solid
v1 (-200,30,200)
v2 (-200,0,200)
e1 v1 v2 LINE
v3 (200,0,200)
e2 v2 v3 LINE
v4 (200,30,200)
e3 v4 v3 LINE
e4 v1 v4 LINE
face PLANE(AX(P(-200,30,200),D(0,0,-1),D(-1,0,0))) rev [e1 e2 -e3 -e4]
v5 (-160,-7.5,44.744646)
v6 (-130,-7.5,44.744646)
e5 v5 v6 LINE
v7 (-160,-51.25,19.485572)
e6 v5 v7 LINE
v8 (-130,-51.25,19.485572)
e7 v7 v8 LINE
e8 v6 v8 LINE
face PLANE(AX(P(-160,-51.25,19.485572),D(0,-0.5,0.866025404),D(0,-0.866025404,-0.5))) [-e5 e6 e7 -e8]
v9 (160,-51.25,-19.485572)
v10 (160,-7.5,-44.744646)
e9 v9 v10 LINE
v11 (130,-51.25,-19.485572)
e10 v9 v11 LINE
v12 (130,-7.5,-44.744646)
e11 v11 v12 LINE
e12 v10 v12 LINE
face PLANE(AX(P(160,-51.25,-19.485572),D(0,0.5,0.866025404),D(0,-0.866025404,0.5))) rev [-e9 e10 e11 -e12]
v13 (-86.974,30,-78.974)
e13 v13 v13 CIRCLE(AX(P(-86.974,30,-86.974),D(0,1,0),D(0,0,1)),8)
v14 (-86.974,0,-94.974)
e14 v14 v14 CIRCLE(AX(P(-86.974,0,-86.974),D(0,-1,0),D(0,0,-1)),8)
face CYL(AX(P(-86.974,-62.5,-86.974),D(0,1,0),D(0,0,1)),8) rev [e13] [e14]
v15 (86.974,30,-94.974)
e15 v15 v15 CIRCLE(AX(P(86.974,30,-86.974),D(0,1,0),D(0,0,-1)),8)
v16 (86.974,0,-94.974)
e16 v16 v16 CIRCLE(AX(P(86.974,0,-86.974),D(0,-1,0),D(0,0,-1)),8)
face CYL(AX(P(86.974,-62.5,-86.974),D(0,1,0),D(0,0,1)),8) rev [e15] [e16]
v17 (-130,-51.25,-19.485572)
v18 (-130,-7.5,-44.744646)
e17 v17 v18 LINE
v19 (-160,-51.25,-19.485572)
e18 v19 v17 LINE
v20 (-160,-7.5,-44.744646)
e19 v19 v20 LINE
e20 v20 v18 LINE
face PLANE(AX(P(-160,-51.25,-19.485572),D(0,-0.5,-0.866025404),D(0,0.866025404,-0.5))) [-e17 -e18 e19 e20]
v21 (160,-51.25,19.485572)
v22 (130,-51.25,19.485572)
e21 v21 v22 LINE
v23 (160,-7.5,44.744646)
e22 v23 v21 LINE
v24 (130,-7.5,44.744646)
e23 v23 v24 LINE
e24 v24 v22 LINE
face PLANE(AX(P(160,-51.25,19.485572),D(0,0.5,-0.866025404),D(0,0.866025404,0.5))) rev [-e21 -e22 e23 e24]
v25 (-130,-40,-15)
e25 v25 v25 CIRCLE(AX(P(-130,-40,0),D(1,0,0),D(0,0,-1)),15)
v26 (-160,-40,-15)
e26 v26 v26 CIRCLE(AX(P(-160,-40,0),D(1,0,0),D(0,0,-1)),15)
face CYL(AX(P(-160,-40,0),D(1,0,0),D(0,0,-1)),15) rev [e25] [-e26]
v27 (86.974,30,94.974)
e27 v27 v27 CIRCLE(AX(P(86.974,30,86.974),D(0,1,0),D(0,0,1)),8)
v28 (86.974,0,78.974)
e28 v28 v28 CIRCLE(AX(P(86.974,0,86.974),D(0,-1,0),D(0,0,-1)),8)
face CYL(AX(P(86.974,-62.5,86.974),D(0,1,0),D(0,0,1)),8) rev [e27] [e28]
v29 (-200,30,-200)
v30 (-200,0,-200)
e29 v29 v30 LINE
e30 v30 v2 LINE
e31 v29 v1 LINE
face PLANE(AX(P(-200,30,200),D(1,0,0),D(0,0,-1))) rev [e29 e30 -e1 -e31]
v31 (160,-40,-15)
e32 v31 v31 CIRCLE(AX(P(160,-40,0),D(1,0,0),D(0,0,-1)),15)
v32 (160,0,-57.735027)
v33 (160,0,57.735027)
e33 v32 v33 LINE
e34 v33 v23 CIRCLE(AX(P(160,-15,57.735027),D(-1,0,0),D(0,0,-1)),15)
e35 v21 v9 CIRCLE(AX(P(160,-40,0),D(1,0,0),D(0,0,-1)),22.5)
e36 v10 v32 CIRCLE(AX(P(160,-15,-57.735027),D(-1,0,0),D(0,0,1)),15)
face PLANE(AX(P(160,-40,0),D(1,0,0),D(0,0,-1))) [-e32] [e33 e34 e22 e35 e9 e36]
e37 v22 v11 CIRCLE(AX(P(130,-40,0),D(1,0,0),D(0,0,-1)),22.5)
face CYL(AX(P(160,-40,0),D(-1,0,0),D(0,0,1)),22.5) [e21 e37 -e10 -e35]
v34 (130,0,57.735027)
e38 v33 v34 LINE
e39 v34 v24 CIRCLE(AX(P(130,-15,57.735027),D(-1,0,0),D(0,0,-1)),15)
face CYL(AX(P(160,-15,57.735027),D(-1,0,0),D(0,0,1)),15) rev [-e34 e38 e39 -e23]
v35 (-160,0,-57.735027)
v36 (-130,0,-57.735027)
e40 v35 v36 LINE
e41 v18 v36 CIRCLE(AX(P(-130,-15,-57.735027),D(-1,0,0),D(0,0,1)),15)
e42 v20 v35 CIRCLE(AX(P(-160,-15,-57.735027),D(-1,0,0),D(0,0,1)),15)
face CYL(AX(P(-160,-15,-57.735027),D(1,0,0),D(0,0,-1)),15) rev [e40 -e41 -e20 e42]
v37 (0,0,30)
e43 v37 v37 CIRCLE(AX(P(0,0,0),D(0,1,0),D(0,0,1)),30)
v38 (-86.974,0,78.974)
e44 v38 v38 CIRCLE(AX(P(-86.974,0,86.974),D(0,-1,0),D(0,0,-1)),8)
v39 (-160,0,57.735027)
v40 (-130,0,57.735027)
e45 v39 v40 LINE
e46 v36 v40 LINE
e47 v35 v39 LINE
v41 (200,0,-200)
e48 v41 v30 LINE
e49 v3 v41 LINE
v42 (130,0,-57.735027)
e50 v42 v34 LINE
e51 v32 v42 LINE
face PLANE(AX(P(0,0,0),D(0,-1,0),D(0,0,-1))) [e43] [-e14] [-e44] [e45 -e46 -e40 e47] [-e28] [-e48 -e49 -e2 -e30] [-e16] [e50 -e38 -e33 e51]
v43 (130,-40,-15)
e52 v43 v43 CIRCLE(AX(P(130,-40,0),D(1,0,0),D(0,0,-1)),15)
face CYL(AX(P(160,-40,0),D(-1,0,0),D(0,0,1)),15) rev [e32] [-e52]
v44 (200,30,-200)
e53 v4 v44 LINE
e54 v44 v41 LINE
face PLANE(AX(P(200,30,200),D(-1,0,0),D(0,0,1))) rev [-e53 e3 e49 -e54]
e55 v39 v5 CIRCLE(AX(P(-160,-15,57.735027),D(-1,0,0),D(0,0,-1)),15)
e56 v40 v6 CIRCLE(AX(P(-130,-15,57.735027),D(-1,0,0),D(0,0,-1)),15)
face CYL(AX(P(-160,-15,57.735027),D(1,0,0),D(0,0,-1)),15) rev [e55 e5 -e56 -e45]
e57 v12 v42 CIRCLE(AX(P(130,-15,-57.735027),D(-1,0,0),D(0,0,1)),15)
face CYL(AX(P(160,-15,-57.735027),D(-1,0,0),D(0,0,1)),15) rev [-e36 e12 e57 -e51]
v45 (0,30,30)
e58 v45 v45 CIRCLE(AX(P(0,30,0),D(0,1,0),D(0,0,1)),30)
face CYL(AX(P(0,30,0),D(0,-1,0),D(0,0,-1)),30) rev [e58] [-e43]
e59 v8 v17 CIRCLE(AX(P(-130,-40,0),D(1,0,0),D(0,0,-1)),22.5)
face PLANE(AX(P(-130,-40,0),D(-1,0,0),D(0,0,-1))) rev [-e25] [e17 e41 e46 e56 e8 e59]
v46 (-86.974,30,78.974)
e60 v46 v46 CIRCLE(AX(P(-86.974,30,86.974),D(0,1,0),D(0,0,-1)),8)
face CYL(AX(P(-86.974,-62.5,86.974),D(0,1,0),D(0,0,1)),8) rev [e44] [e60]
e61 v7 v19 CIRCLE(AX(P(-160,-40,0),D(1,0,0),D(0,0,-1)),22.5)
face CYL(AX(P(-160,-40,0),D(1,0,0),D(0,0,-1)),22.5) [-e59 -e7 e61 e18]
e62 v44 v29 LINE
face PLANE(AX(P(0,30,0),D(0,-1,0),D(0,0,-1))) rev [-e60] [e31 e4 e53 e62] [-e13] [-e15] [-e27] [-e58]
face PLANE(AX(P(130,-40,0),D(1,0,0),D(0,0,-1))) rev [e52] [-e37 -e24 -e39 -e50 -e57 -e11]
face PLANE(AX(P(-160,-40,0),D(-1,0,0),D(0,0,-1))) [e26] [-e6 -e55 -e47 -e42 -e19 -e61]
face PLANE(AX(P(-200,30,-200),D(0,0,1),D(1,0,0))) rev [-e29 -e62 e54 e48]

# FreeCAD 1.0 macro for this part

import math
import FreeCAD as App
import Part
import Sketcher
Q = App.Units.Quantity


def add_polygon(sketch, points):
    """Adds a closed chain of lines whose ends are joined by coincident constraints."""
    first, n = sketch.GeometryCount, len(points)
    for a, b in zip(points, points[1:] + points[:1]):
        sketch.addGeometry(Part.LineSegment(App.Vector(*a, 0), App.Vector(*b, 0)), False)
    for i in range(n):
        sketch.addConstraint(Sketcher.Constraint("Coincident", first + i, 2, first + (i + 1) % n, 1))

doc = App.newDocument("Part")
body = doc.addObject("PartDesign::Body", "Body")

sketch1 = doc.addObject("Sketcher::SketchObject", "Sketch")
body.addObject(sketch1)
sketch1.AttachmentSupport = (doc.XZ_Plane, [""])
sketch1.MapMode = "FlatFace"
add_polygon(sketch1, [(-200, -200), (-200, 200), (200, 200), (200, -200)])
sketch1.addGeometry(Part.Circle(App.Vector(0, 0, 0), App.Vector(0, 0, 1), 30), False)
sketch1.addConstraint([
    Sketcher.Constraint("Vertical", 0),
    Sketcher.Constraint("Horizontal", 1),
    Sketcher.Constraint("Vertical", 2),
    Sketcher.Constraint("Horizontal", 3),
    Sketcher.Constraint("Coincident", 4, 3, -1, 1),
    Sketcher.Constraint("Symmetric", 0, 2, 2, 2, -1, 1),
    Sketcher.Constraint("Equal", 3, 0),
    Sketcher.Constraint("Diameter", 4, 60.0),
    Sketcher.Constraint("DistanceX", 1, 1, 1, 2, 400.0),
])
pad1 = doc.addObject("PartDesign::Pad", "Pad")
body.addObject(pad1)
pad1.Profile = sketch1
pad1.Length = 30
pad1.Reversed = True

sketch2 = doc.addObject("Sketcher::SketchObject", "Sketch001")
body.addObject(sketch2)
sketch2.AttachmentSupport = (doc.YZ_Plane, [""])
sketch2.MapMode = "FlatFace"
sketch2.AttachmentOffset = App.Placement(App.Vector(0, 0, 130), App.Rotation())
sketch2.addGeometry([
    Part.LineSegment(App.Vector(-8, 45, 0), App.Vector(-51, 19, 0)),
    Part.ArcOfCircle(Part.Circle(App.Vector(-40, 0, 0), App.Vector(0, 0, 1), 22), math.radians(120), math.radians(240)),
    Part.LineSegment(App.Vector(-51, -19, 0), App.Vector(-8, -45, 0)),
    Part.ArcOfCircle(Part.Circle(App.Vector(-15, -58, 0), App.Vector(0, 0, 1), 15), math.radians(0), math.radians(60)),
    Part.LineSegment(App.Vector(0, -58, 0), App.Vector(0, 58, 0)),
    Part.ArcOfCircle(Part.Circle(App.Vector(-15, 58, 0), App.Vector(0, 0, 1), 15), math.radians(-60), math.radians(0)),
    Part.Circle(App.Vector(-40, 0, 0), App.Vector(0, 0, 1), 15),
], False)
sketch2.addConstraint([
    Sketcher.Constraint("Tangent", 0, 2, 1, 1),
    Sketcher.Constraint("Tangent", 1, 2, 2, 1),
    Sketcher.Constraint("Tangent", 2, 2, 3, 2),
    Sketcher.Constraint("Tangent", 3, 1, 4, 1),
    Sketcher.Constraint("Tangent", 4, 2, 5, 2),
    Sketcher.Constraint("Tangent", 5, 1, 0, 1),
    Sketcher.Constraint("Vertical", 4),
    Sketcher.Constraint("Coincident", 6, 3, 1, 3),
    Sketcher.Constraint("Equal", 3, 5),
    Sketcher.Constraint("Equal", 5, 6),
    Sketcher.Constraint("Symmetric", 3, 1, 4, 2, -1, 1),
    Sketcher.Constraint("PointOnObject", 1, 3, -1),
    Sketcher.Constraint("Diameter", 6, 30.0),
    Sketcher.Constraint("Radius", 1, 22.5),
    Sketcher.Constraint("Angle", 0, Q("-150 deg")),
    Sketcher.Constraint("DistanceX", 1, 3, -1, 1, 40.0),
])
pad2 = doc.addObject("PartDesign::Pad", "Pad001")
body.addObject(pad2)
pad2.Profile = sketch2
pad2.Length = 30
doc.recompute()

mirrored = doc.addObject("PartDesign::Mirrored", "Mirrored")
body.addObject(mirrored)
mirrored.Originals = [pad2]
mirrored.MirrorPlane = (doc.YZ_Plane, [""])
body.Tip = mirrored

sketch3 = doc.addObject("Sketcher::SketchObject", "Sketch002")
body.addObject(sketch3)
sketch3.AttachmentSupport = (doc.XZ_Plane, [""])
sketch3.MapMode = "FlatFace"
sketch3.AttachmentOffset = App.Placement(App.Vector(0, 0, -30), App.Rotation())
sketch3.addGeometry([
    Part.Circle(App.Vector(-87, -87, 0), App.Vector(0, 0, 1), 8),
    Part.Circle(App.Vector(87, -87, 0), App.Vector(0, 0, 1), 8),
    Part.Circle(App.Vector(87, 87, 0), App.Vector(0, 0, 1), 8),
    Part.Circle(App.Vector(-87, 87, 0), App.Vector(0, 0, 1), 8),
], False)
sketch3.addConstraint([
    Sketcher.Constraint("Equal", 0, 1),
    Sketcher.Constraint("Equal", 1, 2),
    Sketcher.Constraint("Equal", 2, 3),
    Sketcher.Constraint("Symmetric", 0, 3, 2, 3, -1, 1),
    Sketcher.Constraint("Symmetric", 1, 3, 3, 3, -1, 1),
    Sketcher.Constraint("Symmetric", 0, 3, 1, 3, -2),
    Sketcher.Constraint("Diameter", 0, 16.0),
    Sketcher.Constraint("DistanceX", 0, 3, -1, 1, 86.974),
    Sketcher.Constraint("DistanceY", 0, 3, -1, 1, 86.974),
])
pocket1 = doc.addObject("PartDesign::Pocket", "Pocket")
body.addObject(pocket1)
pocket1.Profile = sketch3
pocket1.Type = "ThroughAll"
pocket1.Reversed = True

doc.recompute()
